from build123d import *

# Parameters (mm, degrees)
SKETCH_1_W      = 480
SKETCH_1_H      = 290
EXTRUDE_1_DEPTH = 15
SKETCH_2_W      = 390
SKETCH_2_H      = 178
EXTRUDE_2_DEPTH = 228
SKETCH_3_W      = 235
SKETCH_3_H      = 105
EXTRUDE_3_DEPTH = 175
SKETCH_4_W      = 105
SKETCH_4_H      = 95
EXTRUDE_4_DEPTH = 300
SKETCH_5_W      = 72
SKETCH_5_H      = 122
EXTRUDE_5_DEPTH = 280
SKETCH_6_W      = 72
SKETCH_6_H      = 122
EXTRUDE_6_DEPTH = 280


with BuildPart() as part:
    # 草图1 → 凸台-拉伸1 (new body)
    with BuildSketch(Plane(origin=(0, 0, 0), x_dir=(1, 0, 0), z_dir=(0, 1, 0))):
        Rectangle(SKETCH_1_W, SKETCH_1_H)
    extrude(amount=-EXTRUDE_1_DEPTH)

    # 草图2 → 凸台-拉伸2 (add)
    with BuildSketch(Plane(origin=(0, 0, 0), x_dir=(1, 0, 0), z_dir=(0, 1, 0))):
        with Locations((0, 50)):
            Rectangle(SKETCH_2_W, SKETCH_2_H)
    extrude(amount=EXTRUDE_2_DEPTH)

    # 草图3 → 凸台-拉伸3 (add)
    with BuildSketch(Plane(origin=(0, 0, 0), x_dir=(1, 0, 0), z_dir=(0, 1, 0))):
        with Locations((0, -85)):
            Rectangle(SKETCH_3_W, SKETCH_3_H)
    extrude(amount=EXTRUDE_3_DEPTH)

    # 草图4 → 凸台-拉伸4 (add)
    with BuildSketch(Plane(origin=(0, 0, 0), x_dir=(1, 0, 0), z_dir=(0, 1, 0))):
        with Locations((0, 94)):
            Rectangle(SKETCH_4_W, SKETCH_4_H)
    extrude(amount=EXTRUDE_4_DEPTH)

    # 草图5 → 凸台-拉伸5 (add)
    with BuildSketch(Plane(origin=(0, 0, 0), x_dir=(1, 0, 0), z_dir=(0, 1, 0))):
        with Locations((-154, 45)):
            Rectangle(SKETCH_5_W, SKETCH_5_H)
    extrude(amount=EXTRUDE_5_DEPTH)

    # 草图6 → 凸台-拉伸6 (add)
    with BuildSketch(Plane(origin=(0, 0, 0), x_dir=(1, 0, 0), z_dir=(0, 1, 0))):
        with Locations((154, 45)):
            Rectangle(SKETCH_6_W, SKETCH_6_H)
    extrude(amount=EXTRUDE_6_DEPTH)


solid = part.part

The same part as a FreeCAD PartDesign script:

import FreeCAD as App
import Part
import Sketcher
from FreeCAD import Vector
Q = App.Units.Quantity


def add_polygon(sketch, points):
    """Adds a closed chain of lines whose ends are joined by coincident constraints."""
    first, n = sketch.GeometryCount, len(points)
    for a, b in zip(points, points[1:] + points[:1]):
        sketch.addGeometry(Part.LineSegment(App.Vector(*a, 0), App.Vector(*b, 0)), False)
    for i in range(n):
        sketch.addConstraint(Sketcher.Constraint("Coincident", first + i, 2, first + (i + 1) % n, 1))

doc = App.newDocument("Part")
body = doc.addObject("PartDesign::Body", "Body")

# Sketch on XZ plane
sketch1 = body.newObject("Sketcher::SketchObject", "Sketch")
sketch1.AttachmentSupport = (doc.getObject("XZ_Plane"), [""])
sketch1.MapMode = "FlatFace"
add_polygon(sketch1, [(-240, -145), (-240, 145), (240, 145), (240, -145)])  # lines 0-3
sketch1.addConstraint([
    Sketcher.Constraint("Vertical", 0),
    Sketcher.Constraint("Horizontal", 1),
    Sketcher.Constraint("Vertical", 2),
    Sketcher.Constraint("Horizontal", 3),
    Sketcher.Constraint("Symmetric", 0, 2, 2, 2, -1, 1),
    Sketcher.Constraint("DistanceX", 1, 1, 1, 2, Q("480 mm")),
    Sketcher.Constraint("DistanceY", 0, 1, 0, 2, Q("290 mm")),
])
pad1 = body.newObject("PartDesign::Pad", "Pad")
pad1.Profile = sketch1
pad1.Length = 15

# Sketch on XZ plane
sketch2 = body.newObject("Sketcher::SketchObject", "Sketch001")
sketch2.AttachmentSupport = (doc.getObject("XZ_Plane"), [""])
sketch2.MapMode = "FlatFace"
add_polygon(sketch2, [(-195, -139), (-195, 39), (195, 39), (195, -139)])  # lines 0-3
sketch2.addConstraint([
    Sketcher.Constraint("Vertical", 0),
    Sketcher.Constraint("Horizontal", 1),
    Sketcher.Constraint("Vertical", 2),
    Sketcher.Constraint("Horizontal", 3),
    Sketcher.Constraint("DistanceX", 1, 1, 1, 2, Q("390 mm")),
    Sketcher.Constraint("DistanceY", 0, 1, 0, 2, Q("178 mm")),
    Sketcher.Constraint("DistanceX", 0, 2, -1, 1, Q("195 mm")),
    Sketcher.Constraint("DistanceY", -1, 1, 0, 2, Q("39 mm")),
])
pad2 = body.newObject("PartDesign::Pad", "Pad001")
pad2.Profile = sketch2
pad2.Length = 228
pad2.Reversed = True

# Sketch on XZ plane
sketch3 = body.newObject("Sketcher::SketchObject", "Sketch002")
sketch3.AttachmentSupport = (doc.getObject("XZ_Plane"), [""])
sketch3.MapMode = "FlatFace"
add_polygon(sketch3, [(-118, 32), (-118, 138), (118, 138), (118, 32)])  # lines 0-3
sketch3.addConstraint([
    Sketcher.Constraint("Vertical", 0),
    Sketcher.Constraint("Horizontal", 1),
    Sketcher.Constraint("Vertical", 2),
    Sketcher.Constraint("Horizontal", 3),
    Sketcher.Constraint("DistanceX", 1, 1, 1, 2, Q("235 mm")),
    Sketcher.Constraint("DistanceY", 0, 1, 0, 2, Q("105 mm")),
    Sketcher.Constraint("DistanceX", 0, 2, -1, 1, Q("117.5 mm")),
    Sketcher.Constraint("DistanceY", -1, 1, 0, 2, Q("137.5 mm")),
])
pad3 = body.newObject("PartDesign::Pad", "Pad002")
pad3.Profile = sketch3
pad3.Length = 175
pad3.Reversed = True

# Sketch on XZ plane
sketch4 = body.newObject("Sketcher::SketchObject", "Sketch003")
sketch4.AttachmentSupport = (doc.getObject("XZ_Plane"), [""])
sketch4.MapMode = "FlatFace"
add_polygon(sketch4, [(-52, -142), (-52, -46), (52, -46), (52, -142)])  # lines 0-3
sketch4.addConstraint([
    Sketcher.Constraint("Vertical", 0),
    Sketcher.Constraint("Horizontal", 1),
    Sketcher.Constraint("Vertical", 2),
    Sketcher.Constraint("Horizontal", 3),
    Sketcher.Constraint("DistanceX", 1, 1, 1, 2, Q("105 mm")),
    Sketcher.Constraint("DistanceY", 0, 1, 0, 2, Q("95 mm")),
    Sketcher.Constraint("DistanceX", 0, 2, -1, 1, Q("52.5 mm")),
    Sketcher.Constraint("DistanceY", 0, 2, -1, 1, Q("46.5 mm")),
])
pad4 = body.newObject("PartDesign::Pad", "Pad003")
pad4.Profile = sketch4
pad4.Length = 300
pad4.Reversed = True

# Sketch on XZ plane
sketch5 = body.newObject("Sketcher::SketchObject", "Sketch004")
sketch5.AttachmentSupport = (doc.getObject("XZ_Plane"), [""])
sketch5.MapMode = "FlatFace"
add_polygon(sketch5, [(-190, -106), (-190, 16), (-118, 16), (-118, -106)])  # lines 0-3
sketch5.addConstraint([
    Sketcher.Constraint("Vertical", 0),
    Sketcher.Constraint("Horizontal", 1),
    Sketcher.Constraint("Vertical", 2),
    Sketcher.Constraint("Horizontal", 3),
    Sketcher.Constraint("DistanceX", 1, 1, 1, 2, Q("72 mm")),
    Sketcher.Constraint("DistanceY", 0, 1, 0, 2, Q("122 mm")),
    Sketcher.Constraint("DistanceX", 0, 2, -1, 1, Q("190 mm")),
    Sketcher.Constraint("DistanceY", -1, 1, 0, 2, Q("16 mm")),
])
pad5 = body.newObject("PartDesign::Pad", "Pad004")
pad5.Profile = sketch5
pad5.Length = 280
pad5.Reversed = True

# Sketch on XZ plane
sketch6 = body.newObject("Sketcher::SketchObject", "Sketch005")
sketch6.AttachmentSupport = (doc.getObject("XZ_Plane"), [""])
sketch6.MapMode = "FlatFace"
add_polygon(sketch6, [(118, -106), (118, 16), (190, 16), (190, -106)])  # lines 0-3
sketch6.addConstraint([
    Sketcher.Constraint("Vertical", 0),
    Sketcher.Constraint("Horizontal", 1),
    Sketcher.Constraint("Vertical", 2),
    Sketcher.Constraint("Horizontal", 3),
    Sketcher.Constraint("DistanceX", 1, 1, 1, 2, Q("72 mm")),
    Sketcher.Constraint("DistanceY", 0, 1, 0, 2, Q("122 mm")),
    Sketcher.Constraint("DistanceX", -1, 1, 0, 2, Q("118 mm")),
    Sketcher.Constraint("DistanceY", -1, 1, 0, 2, Q("16 mm")),
])
pad6 = body.newObject("PartDesign::Pad", "Pad005")
pad6.Profile = sketch6
pad6.Length = 280
pad6.Reversed = True

doc.recompute()
